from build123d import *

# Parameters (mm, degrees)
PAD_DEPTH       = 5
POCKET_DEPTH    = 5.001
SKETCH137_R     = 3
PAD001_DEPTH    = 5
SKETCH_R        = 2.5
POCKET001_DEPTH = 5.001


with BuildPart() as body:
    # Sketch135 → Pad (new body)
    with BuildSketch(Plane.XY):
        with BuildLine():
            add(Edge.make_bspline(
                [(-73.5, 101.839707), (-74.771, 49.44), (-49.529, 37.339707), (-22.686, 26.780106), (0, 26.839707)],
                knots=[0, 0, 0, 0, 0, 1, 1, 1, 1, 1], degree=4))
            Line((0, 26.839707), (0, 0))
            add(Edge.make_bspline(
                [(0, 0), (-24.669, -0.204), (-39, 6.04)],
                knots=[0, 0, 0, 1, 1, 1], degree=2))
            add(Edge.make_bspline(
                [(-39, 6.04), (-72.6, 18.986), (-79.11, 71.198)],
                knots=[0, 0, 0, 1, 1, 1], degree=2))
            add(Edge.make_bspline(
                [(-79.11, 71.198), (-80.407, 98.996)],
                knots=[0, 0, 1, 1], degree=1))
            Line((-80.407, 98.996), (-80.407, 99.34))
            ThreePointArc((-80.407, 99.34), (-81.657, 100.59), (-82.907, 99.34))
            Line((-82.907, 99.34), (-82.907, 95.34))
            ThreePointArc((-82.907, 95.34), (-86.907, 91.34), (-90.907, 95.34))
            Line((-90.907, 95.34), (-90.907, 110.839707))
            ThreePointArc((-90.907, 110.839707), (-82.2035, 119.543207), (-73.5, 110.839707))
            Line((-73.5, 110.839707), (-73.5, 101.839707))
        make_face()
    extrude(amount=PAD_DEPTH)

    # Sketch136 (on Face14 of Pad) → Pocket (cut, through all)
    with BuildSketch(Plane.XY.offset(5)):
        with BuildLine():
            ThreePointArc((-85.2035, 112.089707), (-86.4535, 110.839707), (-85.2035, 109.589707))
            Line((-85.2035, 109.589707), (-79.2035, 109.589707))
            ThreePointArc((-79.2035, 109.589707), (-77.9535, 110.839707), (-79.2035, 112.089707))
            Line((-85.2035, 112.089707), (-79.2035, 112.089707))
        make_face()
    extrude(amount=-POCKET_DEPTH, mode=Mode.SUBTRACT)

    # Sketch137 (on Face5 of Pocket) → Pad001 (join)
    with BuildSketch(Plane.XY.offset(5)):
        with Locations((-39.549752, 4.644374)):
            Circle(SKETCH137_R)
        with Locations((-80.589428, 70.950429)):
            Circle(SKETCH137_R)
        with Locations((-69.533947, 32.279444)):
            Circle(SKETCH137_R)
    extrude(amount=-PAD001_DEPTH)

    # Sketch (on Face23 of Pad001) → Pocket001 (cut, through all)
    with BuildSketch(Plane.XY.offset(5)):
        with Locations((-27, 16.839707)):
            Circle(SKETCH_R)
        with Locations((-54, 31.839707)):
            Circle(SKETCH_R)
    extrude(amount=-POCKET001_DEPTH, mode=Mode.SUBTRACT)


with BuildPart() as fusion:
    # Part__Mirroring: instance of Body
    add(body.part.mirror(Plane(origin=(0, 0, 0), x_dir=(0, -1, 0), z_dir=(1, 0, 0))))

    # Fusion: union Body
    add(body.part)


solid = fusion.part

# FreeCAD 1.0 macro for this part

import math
import FreeCAD as App
import Part
import Sketcher

V = App.Vector
Q = App.Units.Quantity

doc = App.newDocument("Part")
body = doc.addObject("PartDesign::Body", "Body")

sketch1 = body.newObject("Sketcher::SketchObject", "Sketch")
sketch1.AttachmentSupport = (doc.getObject("XY_Plane"), [""])
sketch1.MapMode = "FlatFace"
sketch1.addGeometry([
    Part.BSplineCurve([V(-73.5, 101.839707, 0), V(-74.771, 49.44, 0), V(-49.529, 37.339707, 0), V(-22.686, 26.780106, 0), V(0, 26.839707, 0)], [5, 5], [0, 1], False, 4, [1, 1, 1, 1, 1], False),
    Part.LineSegment(V(-73.5, 101.839707, 0), V(-73.5, 110.839707, 0)),
    Part.ArcOfCircle(Part.Circle(V(-82.2035, 110.839707, 0), V(0, 0, 1), 8.7035), math.radians(0), math.radians(180)),
    Part.LineSegment(V(-90.907, 110.839707, 0), V(-90.907, 95.34, 0)),
    Part.ArcOfCircle(Part.Circle(V(-86.907, 95.34, 0), V(0, 0, 1), 4), math.radians(180), math.radians(360)),
    Part.LineSegment(V(-82.907, 95.34, 0), V(-82.907, 99.34, 0)),
    Part.ArcOfCircle(Part.Circle(V(-81.657, 99.34, 0), V(0, 0, 1), 1.25), math.radians(0), math.radians(180)),
    Part.LineSegment(V(-80.407, 99.34, 0), V(-80.407, 98.996, 0)),
    Part.BSplineCurve([V(-79.11, 71.198, 0), V(-80.407, 98.996, 0)], [2, 2], [0, 1], False, 1, [1, 1], False),
    Part.BSplineCurve([V(-39, 6.04, 0), V(-72.6, 18.986, 0), V(-79.11, 71.198, 0)], [3, 3], [0, 1], False, 2, [1, 1, 1], False),
    Part.BSplineCurve([V(0, 0, 0), V(-24.669, -0.204, 0), V(-39, 6.04, 0)], [3, 3], [0, 1], False, 2, [1, 1, 1], False),
    Part.LineSegment(V(0, 0, 0), V(0, 26.839707, 0)),
], False)
sketch1.addConstraint([
    Sketcher.Constraint("Block", 0),
    Sketcher.Constraint("Block", 8),
    Sketcher.Constraint("Block", 9),
    Sketcher.Constraint("Block", 10),
    Sketcher.Constraint("Coincident", 0, 1, 1, 1),
    Sketcher.Constraint("Tangent", 1, 2, 2, 1),
    Sketcher.Constraint("Tangent", 2, 2, 3, 1),
    Sketcher.Constraint("Tangent", 3, 2, 4, 1),
    Sketcher.Constraint("Tangent", 4, 2, 5, 1),
    Sketcher.Constraint("Tangent", 5, 2, 6, 2),
    Sketcher.Constraint("Tangent", 6, 1, 7, 1),
    Sketcher.Constraint("Coincident", 7, 2, 8, 2),
    Sketcher.Constraint("Coincident", 10, 1, 11, 1),
    Sketcher.Constraint("Coincident", 11, 2, 0, 2),
    Sketcher.Constraint("Vertical", 1),
    Sketcher.Constraint("Vertical", 3),
    Sketcher.Constraint("Vertical", 5),
    Sketcher.Constraint("Vertical", 7),
    Sketcher.Constraint("Radius", 4, Q("4 mm")),
    Sketcher.Constraint("DistanceY", 1, 1, 1, 2, Q("9 mm")),
    Sketcher.Constraint("DistanceY", 5, 1, 5, 2, Q("4 mm")),
    Sketcher.Constraint("Radius", 6, Q("1.25 mm")),
    Sketcher.Constraint("DistanceY", 7, 2, 7, 1, Q("0.344 mm")),
])
pad1 = body.newObject("PartDesign::Pad", "Pad")
pad1.Profile = sketch1
pad1.Length = 5

sketch2 = body.newObject("Sketcher::SketchObject", "Sketch001")
sketch2.AttachmentSupport = (doc.getObject("XY_Plane"), [""])
sketch2.MapMode = "FlatFace"
sketch2.AttachmentOffset = App.Placement(V(0, 0, 5), App.Rotation())
sketch2.addGeometry([
    Part.ArcOfCircle(Part.Circle(V(-85.2035, 110.839707, 0), V(0, 0, 1), 1.25), math.radians(90), math.radians(270)),
    Part.LineSegment(V(-85.2035, 109.589707, 0), V(-79.2035, 109.589707, 0)),
    Part.ArcOfCircle(Part.Circle(V(-79.2035, 110.839707, 0), V(0, 0, 1), 1.25), math.radians(-90), math.radians(90)),
    Part.LineSegment(V(-79.2035, 112.089707, 0), V(-85.2035, 112.089707, 0)),
], False)
sketch2.addConstraint([
    Sketcher.Constraint("Tangent", 0, 2, 1, 1),
    Sketcher.Constraint("Tangent", 1, 2, 2, 1),
    Sketcher.Constraint("Tangent", 2, 2, 3, 1),
    Sketcher.Constraint("Tangent", 3, 2, 0, 1),
    Sketcher.Constraint("Horizontal", 1),
    Sketcher.Constraint("Horizontal", 3),
    Sketcher.Constraint("DistanceX", 1, 1, 1, 2, Q("6 mm")),
    Sketcher.Constraint("Radius", 0, Q("1.25 mm")),
    Sketcher.Constraint("DistanceX", 0, 3, -1, 1, Q("85.2035 mm")),
    Sketcher.Constraint("DistanceY", -1, 1, 0, 3, Q("110.839707 mm")),
])
pocket1 = body.newObject("PartDesign::Pocket", "Pocket")
pocket1.Profile = sketch2
pocket1.Type = "ThroughAll"

sketch3 = body.newObject("Sketcher::SketchObject", "Sketch002")
sketch3.AttachmentSupport = (doc.getObject("XY_Plane"), [""])
sketch3.MapMode = "FlatFace"
sketch3.AttachmentOffset = App.Placement(V(0, 0, 5), App.Rotation())
sketch3.addGeometry([
    Part.Circle(V(-39.549752, 4.644374, 0), V(0, 0, 1), 3),
    Part.Circle(V(-80.589428, 70.950429, 0), V(0, 0, 1), 3),
    Part.Circle(V(-69.533947, 32.279444, 0), V(0, 0, 1), 3),
], False)
sketch3.addConstraint([
    Sketcher.Constraint("Equal", 0, 1),
    Sketcher.Constraint("Equal", 1, 2),
    Sketcher.Constraint("Diameter", 0, Q("6 mm")),
    Sketcher.Constraint("DistanceX", 0, 3, -1, 1, Q("39.549752 mm")),
    Sketcher.Constraint("DistanceX", 1, 3, -1, 1, Q("80.589428 mm")),
    Sketcher.Constraint("DistanceY", -1, 1, 1, 3, Q("70.950429 mm")),
    Sketcher.Constraint("DistanceX", 1, 3, 2, 3, Q("11.055481 mm")),
    Sketcher.Constraint("DistanceY", 0, 3, 2, 3, Q("27.63507 mm")),
    Sketcher.Constraint("DistanceY", -1, 1, 0, 3, Q("4.644374 mm")),
])
pad2 = body.newObject("PartDesign::Pad", "Pad001")
pad2.Profile = sketch3
pad2.Length = 5
pad2.Reversed = True

sketch4 = body.newObject("Sketcher::SketchObject", "Sketch003")
sketch4.AttachmentSupport = (doc.getObject("XY_Plane"), [""])
sketch4.MapMode = "FlatFace"
sketch4.AttachmentOffset = App.Placement(V(0, 0, 5), App.Rotation())
sketch4.addGeometry([
    Part.Circle(V(-27, 16.839707, 0), V(0, 0, 1), 2.5),
    Part.Circle(V(-54, 31.839707, 0), V(0, 0, 1), 2.5),
], False)
sketch4.addConstraint([
    Sketcher.Constraint("Equal", 0, 1),
    Sketcher.Constraint("Diameter", 0, Q("5 mm")),
    Sketcher.Constraint("DistanceX", 0, 3, -1, 1, Q("27 mm")),
    Sketcher.Constraint("DistanceX", 1, 3, -1, 1, Q("54 mm")),
    Sketcher.Constraint("DistanceY", 0, 3, 1, 3, Q("15 mm")),
    Sketcher.Constraint("DistanceY", -1, 1, 0, 3, Q("16.839707 mm")),
])
pocket2 = body.newObject("PartDesign::Pocket", "Pocket001")
pocket2.Profile = sketch4
pocket2.Type = "ThroughAll"
body2 = doc.addObject("PartDesign::Body", "Body001")
doc.recompute()

mirroring = doc.addObject("Part::Mirroring", "Mirroring")
mirroring.Source = body
mirroring.Base = V(0, 0, 0)
mirroring.Normal = V(1, 0, 0)
body2.BaseFeature = mirroring
doc.recompute()

boolean = body2.newObject("PartDesign::Boolean", "Boolean")
boolean.Type = "Fuse"
boolean.addObjects([body])
mirroring.Visibility = False

doc.recompute()
